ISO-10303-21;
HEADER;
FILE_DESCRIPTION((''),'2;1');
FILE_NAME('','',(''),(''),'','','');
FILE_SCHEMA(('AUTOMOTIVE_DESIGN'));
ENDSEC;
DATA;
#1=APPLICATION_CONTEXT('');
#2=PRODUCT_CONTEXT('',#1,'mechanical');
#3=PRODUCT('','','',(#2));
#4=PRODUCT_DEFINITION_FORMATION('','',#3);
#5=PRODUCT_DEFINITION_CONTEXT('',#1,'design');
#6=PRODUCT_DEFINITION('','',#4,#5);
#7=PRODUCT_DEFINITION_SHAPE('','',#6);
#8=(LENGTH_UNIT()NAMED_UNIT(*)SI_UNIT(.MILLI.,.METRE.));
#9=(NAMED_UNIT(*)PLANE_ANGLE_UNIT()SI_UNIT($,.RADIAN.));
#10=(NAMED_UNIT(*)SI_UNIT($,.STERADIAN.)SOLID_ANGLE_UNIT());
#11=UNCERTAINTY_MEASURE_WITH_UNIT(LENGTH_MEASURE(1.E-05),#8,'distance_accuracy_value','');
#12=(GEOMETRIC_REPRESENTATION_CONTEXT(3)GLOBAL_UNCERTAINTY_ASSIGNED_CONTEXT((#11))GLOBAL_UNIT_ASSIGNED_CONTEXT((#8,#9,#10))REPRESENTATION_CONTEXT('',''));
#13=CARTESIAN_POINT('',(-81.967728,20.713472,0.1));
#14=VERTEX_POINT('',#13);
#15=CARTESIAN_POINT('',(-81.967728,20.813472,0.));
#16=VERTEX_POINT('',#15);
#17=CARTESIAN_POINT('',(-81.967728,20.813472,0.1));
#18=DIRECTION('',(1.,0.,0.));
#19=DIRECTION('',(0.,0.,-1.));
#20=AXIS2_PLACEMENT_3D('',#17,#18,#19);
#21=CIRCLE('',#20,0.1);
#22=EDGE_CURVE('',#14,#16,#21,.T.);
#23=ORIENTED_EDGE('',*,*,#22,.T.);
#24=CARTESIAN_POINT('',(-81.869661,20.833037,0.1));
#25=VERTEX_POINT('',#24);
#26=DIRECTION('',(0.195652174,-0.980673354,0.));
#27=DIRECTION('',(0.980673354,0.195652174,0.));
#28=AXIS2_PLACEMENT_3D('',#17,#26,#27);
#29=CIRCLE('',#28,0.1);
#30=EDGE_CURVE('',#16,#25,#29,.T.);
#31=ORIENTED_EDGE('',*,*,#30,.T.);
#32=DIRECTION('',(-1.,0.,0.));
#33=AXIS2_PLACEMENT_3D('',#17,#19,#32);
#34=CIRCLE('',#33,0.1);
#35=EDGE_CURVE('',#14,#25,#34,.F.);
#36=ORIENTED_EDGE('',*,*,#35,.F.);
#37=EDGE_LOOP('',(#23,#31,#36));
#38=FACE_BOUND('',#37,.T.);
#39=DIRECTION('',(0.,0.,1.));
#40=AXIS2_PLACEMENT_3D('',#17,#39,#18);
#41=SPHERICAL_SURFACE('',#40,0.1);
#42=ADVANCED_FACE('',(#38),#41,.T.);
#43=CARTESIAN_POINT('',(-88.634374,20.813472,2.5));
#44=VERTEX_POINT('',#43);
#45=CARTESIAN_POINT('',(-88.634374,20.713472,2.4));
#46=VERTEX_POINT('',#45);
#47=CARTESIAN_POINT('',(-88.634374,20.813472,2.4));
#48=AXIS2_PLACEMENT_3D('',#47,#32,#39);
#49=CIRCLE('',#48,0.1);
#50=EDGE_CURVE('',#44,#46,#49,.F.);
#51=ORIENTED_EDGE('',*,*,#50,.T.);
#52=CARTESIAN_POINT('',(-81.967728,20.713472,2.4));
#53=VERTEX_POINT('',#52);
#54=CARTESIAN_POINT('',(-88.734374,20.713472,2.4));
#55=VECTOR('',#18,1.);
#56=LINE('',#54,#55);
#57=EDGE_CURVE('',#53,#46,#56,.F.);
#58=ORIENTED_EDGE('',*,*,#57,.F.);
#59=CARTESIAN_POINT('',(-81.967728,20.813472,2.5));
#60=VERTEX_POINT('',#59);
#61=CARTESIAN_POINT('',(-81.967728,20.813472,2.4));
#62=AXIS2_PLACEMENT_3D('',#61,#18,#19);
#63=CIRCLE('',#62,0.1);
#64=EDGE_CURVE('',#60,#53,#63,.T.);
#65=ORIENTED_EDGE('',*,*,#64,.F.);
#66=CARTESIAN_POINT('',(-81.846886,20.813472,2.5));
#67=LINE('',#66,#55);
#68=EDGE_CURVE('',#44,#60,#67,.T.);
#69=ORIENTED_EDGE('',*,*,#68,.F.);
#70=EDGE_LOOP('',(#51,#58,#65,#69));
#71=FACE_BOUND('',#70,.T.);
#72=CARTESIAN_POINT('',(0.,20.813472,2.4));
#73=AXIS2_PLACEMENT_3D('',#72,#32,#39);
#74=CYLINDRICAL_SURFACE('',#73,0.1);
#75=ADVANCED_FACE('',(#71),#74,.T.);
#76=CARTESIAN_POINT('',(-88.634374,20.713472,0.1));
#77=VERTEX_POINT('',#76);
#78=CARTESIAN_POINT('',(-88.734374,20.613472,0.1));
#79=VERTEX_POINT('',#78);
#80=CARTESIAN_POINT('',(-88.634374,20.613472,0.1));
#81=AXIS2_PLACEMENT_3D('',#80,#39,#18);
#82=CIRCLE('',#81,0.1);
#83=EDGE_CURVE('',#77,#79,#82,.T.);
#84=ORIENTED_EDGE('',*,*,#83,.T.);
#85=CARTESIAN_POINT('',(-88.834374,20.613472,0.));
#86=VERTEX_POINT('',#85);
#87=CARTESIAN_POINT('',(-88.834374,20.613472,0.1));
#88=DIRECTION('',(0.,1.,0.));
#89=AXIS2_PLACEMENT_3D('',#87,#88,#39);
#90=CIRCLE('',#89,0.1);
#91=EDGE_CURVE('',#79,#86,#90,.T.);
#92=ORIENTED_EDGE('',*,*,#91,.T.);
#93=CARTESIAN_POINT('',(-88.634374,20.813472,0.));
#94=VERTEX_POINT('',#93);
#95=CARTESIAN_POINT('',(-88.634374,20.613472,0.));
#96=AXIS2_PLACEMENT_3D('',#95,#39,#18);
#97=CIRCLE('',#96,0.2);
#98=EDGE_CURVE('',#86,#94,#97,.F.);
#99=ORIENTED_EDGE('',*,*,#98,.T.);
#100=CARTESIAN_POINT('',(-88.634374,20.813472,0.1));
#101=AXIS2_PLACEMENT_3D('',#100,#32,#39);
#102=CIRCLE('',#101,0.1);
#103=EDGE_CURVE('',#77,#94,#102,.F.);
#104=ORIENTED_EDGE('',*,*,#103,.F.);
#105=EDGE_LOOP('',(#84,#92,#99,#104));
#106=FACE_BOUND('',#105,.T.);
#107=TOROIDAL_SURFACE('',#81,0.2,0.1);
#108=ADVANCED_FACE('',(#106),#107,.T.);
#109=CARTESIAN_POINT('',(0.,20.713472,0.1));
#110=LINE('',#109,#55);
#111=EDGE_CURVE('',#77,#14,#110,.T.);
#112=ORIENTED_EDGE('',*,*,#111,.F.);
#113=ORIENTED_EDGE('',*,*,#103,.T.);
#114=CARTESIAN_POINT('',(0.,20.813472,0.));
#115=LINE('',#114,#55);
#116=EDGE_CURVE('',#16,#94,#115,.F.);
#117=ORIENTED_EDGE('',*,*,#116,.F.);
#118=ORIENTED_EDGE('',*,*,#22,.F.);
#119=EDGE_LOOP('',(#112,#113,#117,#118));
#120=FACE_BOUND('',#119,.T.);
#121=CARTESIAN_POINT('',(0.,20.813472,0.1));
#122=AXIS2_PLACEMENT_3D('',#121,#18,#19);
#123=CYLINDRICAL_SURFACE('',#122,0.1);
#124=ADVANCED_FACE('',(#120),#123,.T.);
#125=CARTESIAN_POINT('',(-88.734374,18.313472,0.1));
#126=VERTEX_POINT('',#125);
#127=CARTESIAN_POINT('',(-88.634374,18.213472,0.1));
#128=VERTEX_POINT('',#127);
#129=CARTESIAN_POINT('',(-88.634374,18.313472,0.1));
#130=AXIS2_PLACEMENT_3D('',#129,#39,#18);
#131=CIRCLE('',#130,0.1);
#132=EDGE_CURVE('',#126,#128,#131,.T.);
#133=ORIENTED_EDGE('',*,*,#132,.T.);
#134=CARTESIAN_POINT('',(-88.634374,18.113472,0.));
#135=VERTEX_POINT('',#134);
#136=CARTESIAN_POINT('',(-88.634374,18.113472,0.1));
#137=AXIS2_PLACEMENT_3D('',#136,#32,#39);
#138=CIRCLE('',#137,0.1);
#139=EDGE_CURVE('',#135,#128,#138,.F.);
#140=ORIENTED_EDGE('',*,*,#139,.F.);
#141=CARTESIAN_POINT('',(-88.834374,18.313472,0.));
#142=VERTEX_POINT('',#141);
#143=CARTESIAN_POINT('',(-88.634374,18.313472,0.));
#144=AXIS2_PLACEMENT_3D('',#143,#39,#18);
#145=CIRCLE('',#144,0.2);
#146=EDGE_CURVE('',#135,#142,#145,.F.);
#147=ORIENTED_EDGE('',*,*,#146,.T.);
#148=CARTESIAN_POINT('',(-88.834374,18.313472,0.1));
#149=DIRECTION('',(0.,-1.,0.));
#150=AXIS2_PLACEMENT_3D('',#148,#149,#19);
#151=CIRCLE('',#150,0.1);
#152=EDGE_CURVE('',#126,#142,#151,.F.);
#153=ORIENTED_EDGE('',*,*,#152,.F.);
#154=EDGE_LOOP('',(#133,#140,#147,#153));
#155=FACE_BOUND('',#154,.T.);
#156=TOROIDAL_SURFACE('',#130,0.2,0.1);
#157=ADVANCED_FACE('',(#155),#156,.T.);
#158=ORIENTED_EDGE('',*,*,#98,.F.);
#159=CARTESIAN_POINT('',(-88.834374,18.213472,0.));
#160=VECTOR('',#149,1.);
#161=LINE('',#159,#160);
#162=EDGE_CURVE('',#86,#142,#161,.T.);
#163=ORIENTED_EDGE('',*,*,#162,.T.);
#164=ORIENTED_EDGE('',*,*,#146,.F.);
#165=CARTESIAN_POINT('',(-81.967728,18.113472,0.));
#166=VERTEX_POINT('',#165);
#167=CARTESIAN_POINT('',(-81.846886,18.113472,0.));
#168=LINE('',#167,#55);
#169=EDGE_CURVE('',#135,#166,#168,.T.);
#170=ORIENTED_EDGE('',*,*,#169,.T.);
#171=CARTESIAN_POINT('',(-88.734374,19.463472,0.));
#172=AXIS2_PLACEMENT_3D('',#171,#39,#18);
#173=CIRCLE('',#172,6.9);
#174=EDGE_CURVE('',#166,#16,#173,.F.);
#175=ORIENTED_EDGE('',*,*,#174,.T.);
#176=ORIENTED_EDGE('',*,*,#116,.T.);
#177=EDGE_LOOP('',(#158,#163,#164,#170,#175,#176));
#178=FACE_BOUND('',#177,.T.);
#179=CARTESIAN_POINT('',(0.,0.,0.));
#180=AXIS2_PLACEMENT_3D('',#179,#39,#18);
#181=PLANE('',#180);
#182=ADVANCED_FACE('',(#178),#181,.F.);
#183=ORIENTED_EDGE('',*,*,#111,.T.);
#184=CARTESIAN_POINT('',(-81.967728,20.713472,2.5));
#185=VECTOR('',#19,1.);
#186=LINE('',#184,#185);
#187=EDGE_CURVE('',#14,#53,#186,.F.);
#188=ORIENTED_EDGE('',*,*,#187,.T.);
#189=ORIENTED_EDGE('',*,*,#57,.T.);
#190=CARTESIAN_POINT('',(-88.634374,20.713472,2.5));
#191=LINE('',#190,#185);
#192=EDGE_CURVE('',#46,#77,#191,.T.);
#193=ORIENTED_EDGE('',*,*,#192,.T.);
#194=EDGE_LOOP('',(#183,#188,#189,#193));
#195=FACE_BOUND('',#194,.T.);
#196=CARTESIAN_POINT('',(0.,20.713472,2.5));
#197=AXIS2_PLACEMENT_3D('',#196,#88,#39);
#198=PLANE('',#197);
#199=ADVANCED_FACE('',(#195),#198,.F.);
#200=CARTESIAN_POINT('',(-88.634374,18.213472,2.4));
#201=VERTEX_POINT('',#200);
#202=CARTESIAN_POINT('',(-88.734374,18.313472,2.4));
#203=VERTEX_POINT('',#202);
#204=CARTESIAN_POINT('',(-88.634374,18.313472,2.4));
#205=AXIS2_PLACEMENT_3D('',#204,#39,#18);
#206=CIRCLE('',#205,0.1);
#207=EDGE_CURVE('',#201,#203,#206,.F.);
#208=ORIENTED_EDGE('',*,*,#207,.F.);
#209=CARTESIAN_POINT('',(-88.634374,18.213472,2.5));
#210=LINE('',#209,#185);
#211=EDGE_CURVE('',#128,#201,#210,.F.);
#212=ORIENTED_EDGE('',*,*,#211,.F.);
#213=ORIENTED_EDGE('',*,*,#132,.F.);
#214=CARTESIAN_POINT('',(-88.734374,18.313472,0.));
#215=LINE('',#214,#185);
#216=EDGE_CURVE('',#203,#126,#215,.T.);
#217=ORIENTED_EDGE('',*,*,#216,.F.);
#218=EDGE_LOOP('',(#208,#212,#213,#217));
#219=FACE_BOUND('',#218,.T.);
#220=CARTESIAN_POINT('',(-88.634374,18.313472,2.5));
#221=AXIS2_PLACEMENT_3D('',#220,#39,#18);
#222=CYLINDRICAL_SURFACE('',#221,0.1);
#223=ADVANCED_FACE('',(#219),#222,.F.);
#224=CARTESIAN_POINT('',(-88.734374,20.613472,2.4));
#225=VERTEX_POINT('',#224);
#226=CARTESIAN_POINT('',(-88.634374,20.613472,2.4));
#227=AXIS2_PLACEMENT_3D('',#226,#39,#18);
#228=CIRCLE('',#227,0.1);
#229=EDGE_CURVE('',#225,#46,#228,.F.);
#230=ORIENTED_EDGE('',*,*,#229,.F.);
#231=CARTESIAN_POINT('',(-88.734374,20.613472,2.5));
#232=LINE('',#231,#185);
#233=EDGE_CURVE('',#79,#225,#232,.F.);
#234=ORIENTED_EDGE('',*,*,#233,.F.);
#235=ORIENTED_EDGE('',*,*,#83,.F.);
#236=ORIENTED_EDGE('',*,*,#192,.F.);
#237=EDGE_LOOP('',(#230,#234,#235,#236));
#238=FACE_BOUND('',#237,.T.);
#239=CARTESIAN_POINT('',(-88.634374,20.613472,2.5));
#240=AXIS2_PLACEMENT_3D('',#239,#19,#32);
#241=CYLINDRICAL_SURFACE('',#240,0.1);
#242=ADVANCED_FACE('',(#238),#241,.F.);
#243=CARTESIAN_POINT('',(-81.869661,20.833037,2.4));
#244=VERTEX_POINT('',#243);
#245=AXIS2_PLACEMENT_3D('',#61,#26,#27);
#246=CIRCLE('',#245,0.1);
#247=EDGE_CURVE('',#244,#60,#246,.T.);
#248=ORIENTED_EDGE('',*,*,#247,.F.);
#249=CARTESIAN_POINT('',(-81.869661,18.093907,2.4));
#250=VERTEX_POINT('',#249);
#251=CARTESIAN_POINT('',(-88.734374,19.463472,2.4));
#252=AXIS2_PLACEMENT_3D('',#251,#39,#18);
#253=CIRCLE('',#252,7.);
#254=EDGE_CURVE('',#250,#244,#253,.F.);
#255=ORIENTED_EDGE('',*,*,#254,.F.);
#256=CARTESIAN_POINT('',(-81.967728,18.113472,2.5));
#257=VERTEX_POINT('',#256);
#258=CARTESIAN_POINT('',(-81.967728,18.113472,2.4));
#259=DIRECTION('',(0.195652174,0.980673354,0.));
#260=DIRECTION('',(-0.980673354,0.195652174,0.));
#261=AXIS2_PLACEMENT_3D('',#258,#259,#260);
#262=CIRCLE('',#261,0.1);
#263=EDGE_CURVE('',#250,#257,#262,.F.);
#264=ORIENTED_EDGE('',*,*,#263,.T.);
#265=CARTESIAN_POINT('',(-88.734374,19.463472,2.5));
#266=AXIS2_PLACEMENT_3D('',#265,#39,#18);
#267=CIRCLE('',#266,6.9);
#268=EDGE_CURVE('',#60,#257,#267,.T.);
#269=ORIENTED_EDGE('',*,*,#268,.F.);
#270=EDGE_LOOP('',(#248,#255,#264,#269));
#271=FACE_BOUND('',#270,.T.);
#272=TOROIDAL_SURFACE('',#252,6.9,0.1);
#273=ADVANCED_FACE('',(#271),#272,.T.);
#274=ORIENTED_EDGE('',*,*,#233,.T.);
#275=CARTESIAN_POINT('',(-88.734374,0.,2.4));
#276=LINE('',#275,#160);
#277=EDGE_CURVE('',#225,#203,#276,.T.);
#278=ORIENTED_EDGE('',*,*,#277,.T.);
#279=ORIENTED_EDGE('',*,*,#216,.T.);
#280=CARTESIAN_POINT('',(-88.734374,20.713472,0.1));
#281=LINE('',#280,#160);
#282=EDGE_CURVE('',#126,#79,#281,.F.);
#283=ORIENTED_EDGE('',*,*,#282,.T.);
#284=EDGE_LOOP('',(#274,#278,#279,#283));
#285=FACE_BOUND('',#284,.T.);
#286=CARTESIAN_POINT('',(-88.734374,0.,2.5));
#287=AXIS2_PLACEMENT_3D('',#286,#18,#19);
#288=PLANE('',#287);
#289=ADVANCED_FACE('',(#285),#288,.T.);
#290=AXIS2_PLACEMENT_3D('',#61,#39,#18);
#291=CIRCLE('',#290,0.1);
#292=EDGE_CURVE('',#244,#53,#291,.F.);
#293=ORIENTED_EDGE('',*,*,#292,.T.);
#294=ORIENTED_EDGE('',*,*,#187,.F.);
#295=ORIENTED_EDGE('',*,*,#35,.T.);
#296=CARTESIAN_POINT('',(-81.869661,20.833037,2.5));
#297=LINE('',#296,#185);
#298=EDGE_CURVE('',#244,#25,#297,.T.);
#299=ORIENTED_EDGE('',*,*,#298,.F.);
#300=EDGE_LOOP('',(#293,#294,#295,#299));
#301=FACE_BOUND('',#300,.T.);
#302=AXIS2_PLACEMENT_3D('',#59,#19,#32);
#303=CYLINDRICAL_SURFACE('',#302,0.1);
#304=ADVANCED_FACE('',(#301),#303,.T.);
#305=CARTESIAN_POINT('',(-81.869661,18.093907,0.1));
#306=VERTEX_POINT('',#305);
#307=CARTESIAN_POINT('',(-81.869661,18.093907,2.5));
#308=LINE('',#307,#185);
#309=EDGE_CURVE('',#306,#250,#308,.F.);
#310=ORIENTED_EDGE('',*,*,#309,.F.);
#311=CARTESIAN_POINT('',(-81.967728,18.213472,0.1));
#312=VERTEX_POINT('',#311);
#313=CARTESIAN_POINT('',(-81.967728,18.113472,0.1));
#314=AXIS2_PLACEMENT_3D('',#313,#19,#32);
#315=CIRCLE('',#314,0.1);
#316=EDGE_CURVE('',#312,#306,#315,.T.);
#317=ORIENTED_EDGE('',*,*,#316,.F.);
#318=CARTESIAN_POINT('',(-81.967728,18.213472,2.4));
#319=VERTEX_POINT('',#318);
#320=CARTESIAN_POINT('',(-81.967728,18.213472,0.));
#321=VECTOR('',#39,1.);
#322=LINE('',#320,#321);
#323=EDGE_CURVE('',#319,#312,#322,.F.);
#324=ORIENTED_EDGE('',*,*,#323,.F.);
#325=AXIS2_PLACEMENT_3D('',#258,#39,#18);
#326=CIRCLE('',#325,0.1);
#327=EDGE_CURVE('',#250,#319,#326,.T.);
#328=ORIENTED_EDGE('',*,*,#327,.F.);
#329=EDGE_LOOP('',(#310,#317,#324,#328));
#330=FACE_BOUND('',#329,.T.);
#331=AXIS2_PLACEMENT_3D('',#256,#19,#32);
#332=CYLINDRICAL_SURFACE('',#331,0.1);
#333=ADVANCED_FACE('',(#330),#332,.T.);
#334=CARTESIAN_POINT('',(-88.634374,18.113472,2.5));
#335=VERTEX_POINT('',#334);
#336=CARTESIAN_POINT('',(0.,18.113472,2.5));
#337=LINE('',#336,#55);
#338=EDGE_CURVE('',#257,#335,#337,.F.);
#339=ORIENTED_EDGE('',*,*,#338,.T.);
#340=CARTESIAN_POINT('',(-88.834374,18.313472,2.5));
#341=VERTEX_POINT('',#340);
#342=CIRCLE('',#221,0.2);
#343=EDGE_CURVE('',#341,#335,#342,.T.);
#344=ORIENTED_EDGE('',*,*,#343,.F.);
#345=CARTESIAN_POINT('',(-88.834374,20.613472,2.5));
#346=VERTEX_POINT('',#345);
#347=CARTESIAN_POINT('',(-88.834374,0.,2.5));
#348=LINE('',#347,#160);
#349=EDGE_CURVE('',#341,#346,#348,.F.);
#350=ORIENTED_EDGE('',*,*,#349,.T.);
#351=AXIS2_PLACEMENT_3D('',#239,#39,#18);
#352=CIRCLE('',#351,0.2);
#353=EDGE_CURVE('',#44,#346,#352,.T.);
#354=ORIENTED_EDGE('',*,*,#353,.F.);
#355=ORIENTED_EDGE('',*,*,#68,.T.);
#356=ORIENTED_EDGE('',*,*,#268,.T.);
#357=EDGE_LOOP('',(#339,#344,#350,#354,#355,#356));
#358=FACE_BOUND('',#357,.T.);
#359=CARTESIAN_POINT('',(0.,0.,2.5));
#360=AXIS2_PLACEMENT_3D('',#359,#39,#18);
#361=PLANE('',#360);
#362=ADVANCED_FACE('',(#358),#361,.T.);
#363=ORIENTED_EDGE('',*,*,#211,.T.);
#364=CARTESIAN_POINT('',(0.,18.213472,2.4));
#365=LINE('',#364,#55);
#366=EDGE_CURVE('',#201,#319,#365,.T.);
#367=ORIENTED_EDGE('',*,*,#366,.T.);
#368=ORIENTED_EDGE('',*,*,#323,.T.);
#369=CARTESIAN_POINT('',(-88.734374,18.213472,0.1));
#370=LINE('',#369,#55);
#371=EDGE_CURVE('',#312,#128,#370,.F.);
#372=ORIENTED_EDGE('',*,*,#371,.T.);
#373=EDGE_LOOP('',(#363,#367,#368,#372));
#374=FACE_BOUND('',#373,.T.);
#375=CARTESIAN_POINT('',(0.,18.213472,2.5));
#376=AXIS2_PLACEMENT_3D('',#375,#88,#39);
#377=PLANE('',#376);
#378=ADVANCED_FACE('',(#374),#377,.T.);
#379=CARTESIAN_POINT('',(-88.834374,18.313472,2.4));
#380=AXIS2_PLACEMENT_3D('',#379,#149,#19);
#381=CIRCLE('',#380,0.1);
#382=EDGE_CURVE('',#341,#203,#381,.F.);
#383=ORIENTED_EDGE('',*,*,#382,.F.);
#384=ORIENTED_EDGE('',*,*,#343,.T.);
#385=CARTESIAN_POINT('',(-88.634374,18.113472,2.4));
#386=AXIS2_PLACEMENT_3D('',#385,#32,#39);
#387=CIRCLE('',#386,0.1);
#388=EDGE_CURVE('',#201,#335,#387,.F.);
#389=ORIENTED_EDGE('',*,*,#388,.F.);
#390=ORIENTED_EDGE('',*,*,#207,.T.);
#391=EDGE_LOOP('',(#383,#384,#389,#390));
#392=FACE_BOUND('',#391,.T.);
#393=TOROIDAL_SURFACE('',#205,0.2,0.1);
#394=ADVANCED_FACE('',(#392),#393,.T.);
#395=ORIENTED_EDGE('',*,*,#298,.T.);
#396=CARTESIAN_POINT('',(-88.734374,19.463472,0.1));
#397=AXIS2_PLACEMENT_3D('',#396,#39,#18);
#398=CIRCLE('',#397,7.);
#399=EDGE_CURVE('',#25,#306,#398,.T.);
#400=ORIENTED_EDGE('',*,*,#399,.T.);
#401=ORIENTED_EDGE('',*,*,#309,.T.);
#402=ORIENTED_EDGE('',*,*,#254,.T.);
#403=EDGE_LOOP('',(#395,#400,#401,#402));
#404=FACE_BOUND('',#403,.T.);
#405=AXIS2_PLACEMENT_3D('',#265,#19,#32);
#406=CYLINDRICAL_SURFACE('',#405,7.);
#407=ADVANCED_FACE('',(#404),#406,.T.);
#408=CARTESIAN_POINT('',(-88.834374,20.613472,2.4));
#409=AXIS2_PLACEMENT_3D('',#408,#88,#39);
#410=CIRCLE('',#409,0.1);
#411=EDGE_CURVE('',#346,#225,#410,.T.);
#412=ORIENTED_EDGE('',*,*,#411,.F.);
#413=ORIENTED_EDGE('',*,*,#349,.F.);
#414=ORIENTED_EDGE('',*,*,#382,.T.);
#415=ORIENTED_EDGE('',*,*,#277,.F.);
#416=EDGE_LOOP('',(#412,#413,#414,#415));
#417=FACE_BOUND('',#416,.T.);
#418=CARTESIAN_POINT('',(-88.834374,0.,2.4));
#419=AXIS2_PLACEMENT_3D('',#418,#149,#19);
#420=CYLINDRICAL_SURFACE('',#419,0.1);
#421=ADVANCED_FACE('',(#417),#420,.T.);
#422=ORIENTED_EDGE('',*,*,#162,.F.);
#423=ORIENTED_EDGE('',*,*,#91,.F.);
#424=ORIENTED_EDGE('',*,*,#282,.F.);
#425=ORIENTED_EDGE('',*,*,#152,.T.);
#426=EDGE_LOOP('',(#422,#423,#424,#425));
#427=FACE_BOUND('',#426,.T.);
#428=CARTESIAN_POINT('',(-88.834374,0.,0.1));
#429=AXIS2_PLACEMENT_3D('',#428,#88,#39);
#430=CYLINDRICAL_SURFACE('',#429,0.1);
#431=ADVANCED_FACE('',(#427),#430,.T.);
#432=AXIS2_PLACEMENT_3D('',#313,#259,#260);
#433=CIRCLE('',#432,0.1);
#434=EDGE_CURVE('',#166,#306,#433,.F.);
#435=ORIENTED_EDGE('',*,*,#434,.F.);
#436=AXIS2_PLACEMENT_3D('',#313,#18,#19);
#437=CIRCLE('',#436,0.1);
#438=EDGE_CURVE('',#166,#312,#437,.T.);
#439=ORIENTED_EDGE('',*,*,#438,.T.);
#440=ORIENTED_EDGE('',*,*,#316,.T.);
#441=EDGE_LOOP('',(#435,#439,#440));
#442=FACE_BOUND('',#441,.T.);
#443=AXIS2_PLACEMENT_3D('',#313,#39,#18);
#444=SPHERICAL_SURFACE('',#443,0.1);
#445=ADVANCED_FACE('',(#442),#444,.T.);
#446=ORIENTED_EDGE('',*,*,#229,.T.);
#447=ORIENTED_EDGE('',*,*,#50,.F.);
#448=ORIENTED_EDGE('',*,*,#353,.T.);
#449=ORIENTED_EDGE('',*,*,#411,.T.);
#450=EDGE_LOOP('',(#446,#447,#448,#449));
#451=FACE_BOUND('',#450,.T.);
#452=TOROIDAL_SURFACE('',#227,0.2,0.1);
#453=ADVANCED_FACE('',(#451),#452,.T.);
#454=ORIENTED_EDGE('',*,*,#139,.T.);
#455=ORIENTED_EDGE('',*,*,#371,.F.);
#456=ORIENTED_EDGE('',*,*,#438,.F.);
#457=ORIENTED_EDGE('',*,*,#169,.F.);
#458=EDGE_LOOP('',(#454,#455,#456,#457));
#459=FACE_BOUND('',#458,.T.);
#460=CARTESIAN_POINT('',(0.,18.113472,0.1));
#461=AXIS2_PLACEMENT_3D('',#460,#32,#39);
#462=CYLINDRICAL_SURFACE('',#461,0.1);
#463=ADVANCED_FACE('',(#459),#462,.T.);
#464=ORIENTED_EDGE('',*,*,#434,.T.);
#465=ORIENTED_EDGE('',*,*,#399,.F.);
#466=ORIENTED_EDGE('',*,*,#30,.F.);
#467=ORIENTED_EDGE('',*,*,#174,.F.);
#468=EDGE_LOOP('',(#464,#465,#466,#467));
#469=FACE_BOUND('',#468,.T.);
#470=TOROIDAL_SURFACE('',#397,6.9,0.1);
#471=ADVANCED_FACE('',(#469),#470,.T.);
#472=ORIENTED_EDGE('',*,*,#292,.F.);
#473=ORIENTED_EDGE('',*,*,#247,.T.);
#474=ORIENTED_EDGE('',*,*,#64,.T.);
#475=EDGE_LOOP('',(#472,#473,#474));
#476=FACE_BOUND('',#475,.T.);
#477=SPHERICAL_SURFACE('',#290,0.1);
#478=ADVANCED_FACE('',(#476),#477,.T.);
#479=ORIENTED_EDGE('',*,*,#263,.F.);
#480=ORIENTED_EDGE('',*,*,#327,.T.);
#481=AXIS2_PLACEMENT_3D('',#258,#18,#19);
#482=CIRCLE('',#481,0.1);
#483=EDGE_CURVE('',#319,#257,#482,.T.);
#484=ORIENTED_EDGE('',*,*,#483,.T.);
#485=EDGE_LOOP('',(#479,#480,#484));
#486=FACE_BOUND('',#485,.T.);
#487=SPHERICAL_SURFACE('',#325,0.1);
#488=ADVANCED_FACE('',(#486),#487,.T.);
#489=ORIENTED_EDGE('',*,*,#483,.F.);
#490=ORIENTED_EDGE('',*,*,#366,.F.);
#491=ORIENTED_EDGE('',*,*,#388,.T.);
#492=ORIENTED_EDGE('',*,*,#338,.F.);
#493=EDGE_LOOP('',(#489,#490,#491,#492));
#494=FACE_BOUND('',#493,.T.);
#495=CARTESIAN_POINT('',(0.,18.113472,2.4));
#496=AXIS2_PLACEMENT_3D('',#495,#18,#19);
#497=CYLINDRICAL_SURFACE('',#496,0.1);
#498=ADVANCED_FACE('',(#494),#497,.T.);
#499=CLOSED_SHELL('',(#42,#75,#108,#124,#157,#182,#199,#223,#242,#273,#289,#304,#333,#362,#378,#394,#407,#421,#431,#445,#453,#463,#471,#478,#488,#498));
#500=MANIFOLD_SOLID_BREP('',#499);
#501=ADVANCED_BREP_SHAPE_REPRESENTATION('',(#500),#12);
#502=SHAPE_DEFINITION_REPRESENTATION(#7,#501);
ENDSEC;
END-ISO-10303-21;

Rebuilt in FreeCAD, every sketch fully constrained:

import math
import FreeCAD as App
import Part
import Sketcher

doc = App.newDocument("Part")
body = doc.addObject("PartDesign::Body", "Body")

sketch1 = body.newObject("Sketcher::SketchObject", "Sketch")
sketch1.AttachmentSupport = (doc.getObject("XY_Plane"), [""])
sketch1.MapMode = "FlatFace"
sketch1.addGeometry([
    Part.LineSegment(App.Vector(-88.7, 18.2, 0), App.Vector(-88.7, 20.7, 0)),
    Part.LineSegment(App.Vector(-88.7, 20.7, 0), App.Vector(-81.8, 20.7, 0)),
    Part.ArcOfCircle(Part.Circle(App.Vector(-88.7, 19.5, 0), App.Vector(0, 0, 1), 7), math.radians(10), math.radians(350)),
    Part.LineSegment(App.Vector(-81.8, 18.2, 0), App.Vector(-88.7, 18.2, 0)),
], False)
sketch1.addConstraint([
    Sketcher.Constraint("Coincident", 0, 2, 1, 1),
    Sketcher.Constraint("Coincident", 1, 2, 2, 1),
    Sketcher.Constraint("Coincident", 2, 2, 3, 1),
    Sketcher.Constraint("Coincident", 3, 2, 0, 1),
    Sketcher.Constraint("Vertical", 0),
    Sketcher.Constraint("Horizontal", 1),
    Sketcher.Constraint("Horizontal", 3),
    Sketcher.Constraint("Vertical", 2, 3, 0, 2),
    Sketcher.Constraint("Vertical", 1, 2, 2, 2),
    Sketcher.Constraint("Radius", 2, 7.0),
    Sketcher.Constraint("DistanceY", 0, 1, 0, 2, 2.5),
    Sketcher.Constraint("DistanceY", -1, 1, 2, 3, 19.463472),
    Sketcher.Constraint("DistanceX", 2, 3, -1, 1, 88.734374),
])
pad1 = body.newObject("PartDesign::Pad", "Pad")
pad1.Profile = sketch1
pad1.Length = 2.5
doc.recompute()

fillet = body.newObject("PartDesign::Fillet", "Fillet")
fillet.Base = (pad1, ["Edge1"])
fillet.UseAllEdges = True
fillet.Radius = 0.1

doc.recompute()
